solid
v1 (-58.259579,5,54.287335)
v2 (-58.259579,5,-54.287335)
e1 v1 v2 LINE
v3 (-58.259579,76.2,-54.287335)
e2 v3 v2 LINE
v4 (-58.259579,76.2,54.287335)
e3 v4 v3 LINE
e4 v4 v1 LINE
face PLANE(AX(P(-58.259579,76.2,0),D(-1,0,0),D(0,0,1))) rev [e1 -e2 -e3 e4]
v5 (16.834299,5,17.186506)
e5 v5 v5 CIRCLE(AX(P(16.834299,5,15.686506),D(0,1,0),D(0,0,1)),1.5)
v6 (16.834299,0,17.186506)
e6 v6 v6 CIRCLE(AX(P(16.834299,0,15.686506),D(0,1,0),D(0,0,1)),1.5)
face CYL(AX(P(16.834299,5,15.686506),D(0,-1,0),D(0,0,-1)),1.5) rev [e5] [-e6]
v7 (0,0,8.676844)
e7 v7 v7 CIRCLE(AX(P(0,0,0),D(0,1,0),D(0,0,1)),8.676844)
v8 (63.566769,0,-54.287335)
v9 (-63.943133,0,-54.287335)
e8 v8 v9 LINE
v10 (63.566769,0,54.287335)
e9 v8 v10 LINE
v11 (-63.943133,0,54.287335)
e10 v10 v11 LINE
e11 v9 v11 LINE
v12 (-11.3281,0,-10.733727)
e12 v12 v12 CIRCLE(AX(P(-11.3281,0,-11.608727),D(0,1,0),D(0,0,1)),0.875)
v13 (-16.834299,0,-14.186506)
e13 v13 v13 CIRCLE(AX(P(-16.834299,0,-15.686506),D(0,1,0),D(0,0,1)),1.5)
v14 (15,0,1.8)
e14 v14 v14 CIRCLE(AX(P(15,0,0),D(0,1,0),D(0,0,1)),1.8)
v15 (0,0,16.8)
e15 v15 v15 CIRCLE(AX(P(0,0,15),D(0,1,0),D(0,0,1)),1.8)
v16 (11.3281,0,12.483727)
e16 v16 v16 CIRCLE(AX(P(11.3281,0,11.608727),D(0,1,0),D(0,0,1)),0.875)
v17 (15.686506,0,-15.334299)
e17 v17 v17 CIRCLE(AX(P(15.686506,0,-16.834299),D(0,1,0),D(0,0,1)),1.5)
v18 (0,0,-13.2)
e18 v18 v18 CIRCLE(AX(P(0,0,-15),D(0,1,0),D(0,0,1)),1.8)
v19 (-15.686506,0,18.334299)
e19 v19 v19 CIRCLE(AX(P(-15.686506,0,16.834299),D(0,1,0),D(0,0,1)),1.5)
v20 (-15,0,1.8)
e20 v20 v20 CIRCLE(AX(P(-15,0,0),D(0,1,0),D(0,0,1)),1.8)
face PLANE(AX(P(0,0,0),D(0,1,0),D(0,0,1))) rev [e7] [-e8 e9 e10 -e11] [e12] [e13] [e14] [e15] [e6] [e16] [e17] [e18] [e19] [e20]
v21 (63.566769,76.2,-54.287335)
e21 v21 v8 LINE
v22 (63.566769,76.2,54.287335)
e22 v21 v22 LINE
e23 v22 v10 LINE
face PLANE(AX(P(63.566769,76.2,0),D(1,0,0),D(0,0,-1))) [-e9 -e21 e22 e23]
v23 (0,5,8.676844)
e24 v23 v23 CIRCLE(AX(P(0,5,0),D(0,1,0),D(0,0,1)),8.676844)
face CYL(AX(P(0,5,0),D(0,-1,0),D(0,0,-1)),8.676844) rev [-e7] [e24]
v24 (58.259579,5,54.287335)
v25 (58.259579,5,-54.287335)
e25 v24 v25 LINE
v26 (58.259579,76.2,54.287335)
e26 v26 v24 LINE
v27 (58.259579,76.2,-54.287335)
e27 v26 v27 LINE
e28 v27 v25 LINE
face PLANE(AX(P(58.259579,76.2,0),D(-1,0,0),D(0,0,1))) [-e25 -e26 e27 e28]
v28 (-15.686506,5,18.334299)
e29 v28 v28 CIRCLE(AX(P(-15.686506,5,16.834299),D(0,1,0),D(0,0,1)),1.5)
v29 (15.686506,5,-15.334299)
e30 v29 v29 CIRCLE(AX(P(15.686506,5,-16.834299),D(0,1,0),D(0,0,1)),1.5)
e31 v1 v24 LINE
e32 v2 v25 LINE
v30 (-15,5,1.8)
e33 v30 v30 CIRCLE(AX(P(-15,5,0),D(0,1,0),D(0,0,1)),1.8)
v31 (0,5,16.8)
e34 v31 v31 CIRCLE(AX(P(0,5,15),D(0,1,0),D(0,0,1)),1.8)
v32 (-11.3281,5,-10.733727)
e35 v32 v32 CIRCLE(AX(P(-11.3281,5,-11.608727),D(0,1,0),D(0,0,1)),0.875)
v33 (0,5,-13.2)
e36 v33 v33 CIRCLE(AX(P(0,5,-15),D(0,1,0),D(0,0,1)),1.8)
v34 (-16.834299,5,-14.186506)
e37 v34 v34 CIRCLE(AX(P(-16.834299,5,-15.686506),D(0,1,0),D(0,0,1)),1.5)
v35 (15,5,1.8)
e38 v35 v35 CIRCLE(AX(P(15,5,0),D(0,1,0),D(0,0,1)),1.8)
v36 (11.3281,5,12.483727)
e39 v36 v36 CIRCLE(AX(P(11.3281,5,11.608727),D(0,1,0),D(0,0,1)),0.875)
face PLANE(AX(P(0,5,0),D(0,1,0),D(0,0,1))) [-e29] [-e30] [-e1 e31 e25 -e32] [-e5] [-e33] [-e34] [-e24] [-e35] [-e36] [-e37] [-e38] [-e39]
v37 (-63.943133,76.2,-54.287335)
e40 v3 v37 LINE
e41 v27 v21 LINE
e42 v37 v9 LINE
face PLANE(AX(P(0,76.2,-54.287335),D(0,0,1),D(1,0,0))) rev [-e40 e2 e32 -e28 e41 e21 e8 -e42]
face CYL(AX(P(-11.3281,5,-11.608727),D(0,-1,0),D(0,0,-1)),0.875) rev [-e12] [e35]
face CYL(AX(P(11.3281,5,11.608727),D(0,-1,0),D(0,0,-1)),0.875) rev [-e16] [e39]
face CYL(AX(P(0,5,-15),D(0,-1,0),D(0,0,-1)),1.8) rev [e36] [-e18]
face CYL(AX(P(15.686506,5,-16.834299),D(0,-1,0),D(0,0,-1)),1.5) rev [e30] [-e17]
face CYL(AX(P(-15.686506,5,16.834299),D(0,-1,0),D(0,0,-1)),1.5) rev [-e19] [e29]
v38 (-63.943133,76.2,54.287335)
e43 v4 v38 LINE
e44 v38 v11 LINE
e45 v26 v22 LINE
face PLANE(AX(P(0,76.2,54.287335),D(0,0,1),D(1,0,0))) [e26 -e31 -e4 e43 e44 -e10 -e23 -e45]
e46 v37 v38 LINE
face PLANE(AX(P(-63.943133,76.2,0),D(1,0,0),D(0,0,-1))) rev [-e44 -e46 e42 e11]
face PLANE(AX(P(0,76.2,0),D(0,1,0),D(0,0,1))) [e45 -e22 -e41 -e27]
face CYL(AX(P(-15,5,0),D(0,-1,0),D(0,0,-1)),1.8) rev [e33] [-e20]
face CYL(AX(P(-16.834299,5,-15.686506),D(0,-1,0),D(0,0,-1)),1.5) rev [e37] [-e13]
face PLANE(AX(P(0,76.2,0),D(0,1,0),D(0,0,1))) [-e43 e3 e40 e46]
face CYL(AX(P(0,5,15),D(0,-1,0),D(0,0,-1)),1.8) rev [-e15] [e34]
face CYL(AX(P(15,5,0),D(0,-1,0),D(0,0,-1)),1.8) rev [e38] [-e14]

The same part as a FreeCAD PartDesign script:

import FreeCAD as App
import Part
import Sketcher
from FreeCAD import Vector
Q = App.Units.Quantity


def add_polygon(sketch, points):
    """Adds a closed chain of lines whose ends are joined by coincident constraints."""
    first, n = sketch.GeometryCount, len(points)
    for a, b in zip(points, points[1:] + points[:1]):
        sketch.addGeometry(Part.LineSegment(App.Vector(*a, 0), App.Vector(*b, 0)), False)
    for i in range(n):
        sketch.addConstraint(Sketcher.Constraint("Coincident", first + i, 2, first + (i + 1) % n, 1))

doc = App.newDocument("Part")
body = doc.addObject("PartDesign::Body", "Body")

# Sketch on XZ plane
sketch1 = body.newObject("Sketcher::SketchObject", "Sketch")
sketch1.AttachmentSupport = (doc.getObject("XZ_Plane"), [""])
sketch1.MapMode = "FlatFace"
add_polygon(sketch1, [(-64, -54), (-64, 54), (-58, 54), (-58, -54)])  # lines 0-3
sketch1.addConstraint([
    Sketcher.Constraint("Vertical", 0),
    Sketcher.Constraint("Horizontal", 1),
    Sketcher.Constraint("Vertical", 2),
    Sketcher.Constraint("Horizontal", 3),
    Sketcher.Constraint("DistanceY", 0, 1, 0, 2, Q("108.574669 mm")),
    Sketcher.Constraint("DistanceX", 1, 1, 1, 2, Q("5.683555 mm")),
    Sketcher.Constraint("DistanceX", 1, 2, -1, 1, Q("58.259579 mm")),
    Sketcher.Constraint("DistanceY", -1, 1, 0, 2, Q("54.287335 mm")),
])
pad1 = body.newObject("PartDesign::Pad", "Pad")
pad1.Profile = sketch1
pad1.Length = 76.2
pad1.Reversed = True
body2 = doc.addObject("PartDesign::Body", "Body001")

# Sketch on XZ plane
sketch2 = body2.newObject("Sketcher::SketchObject", "Sketch001")
sketch2.AttachmentSupport = (doc.getObject("XZ_Plane001"), [""])
sketch2.MapMode = "FlatFace"
add_polygon(sketch2, [(58, -54), (58, 54), (64, 54), (64, -54)])  # lines 0-3
sketch2.addConstraint([
    Sketcher.Constraint("Vertical", 0),
    Sketcher.Constraint("Horizontal", 1),
    Sketcher.Constraint("Vertical", 2),
    Sketcher.Constraint("Horizontal", 3),
    Sketcher.Constraint("DistanceX", 1, 1, 1, 2, Q("5.307191 mm")),
    Sketcher.Constraint("DistanceY", 0, 1, 0, 2, Q("108.574669 mm")),
    Sketcher.Constraint("DistanceX", -1, 1, 0, 2, Q("58.259579 mm")),
    Sketcher.Constraint("DistanceY", -1, 1, 0, 2, Q("54.287335 mm")),
])
pad2 = body2.newObject("PartDesign::Pad", "Pad001")
pad2.Profile = sketch2
pad2.Length = 76.2
pad2.Reversed = True
body.AllowCompound = True
doc.recompute()

boolean = body.newObject("PartDesign::Boolean", "Boolean")
boolean.Type = "Fuse"
boolean.addObjects([body2])

# Sketch on XZ plane
sketch3 = body.newObject("Sketcher::SketchObject", "Sketch002")
sketch3.AttachmentSupport = (doc.getObject("XZ_Plane"), [""])
sketch3.MapMode = "FlatFace"
add_polygon(sketch3, [(63.6, 54.3), (63.6, -54.3), (-63.9, -54.3), (-63.9, 54.3)])  # lines 0-3
sketch3.addGeometry(Part.Circle(Vector(-15.7, 16.8, 0), Vector(0, 0, 1), 1.5), False)  # 4
sketch3.addGeometry(Part.Circle(Vector(-15, 0, 0), Vector(0, 0, 1), 1.8), False)  # 5
sketch3.addGeometry(Part.Circle(Vector(0, 15, 0), Vector(0, 0, 1), 1.8), False)  # 6
sketch3.addGeometry(Part.Circle(Vector(16.8, 15.7, 0), Vector(0, 0, 1), 1.5), False)  # 7
sketch3.addGeometry(Part.Circle(Vector(11.3, 11.6, 0), Vector(0, 0, 1), 0.9), False)  # 8
sketch3.addGeometry(Part.Circle(Vector(0, 0, 0), Vector(0, 0, 1), 8.7), False)  # 9
sketch3.addGeometry(Part.Circle(Vector(15, 0, 0), Vector(0, 0, 1), 1.8), False)  # 10
sketch3.addGeometry(Part.Circle(Vector(-11.3, -11.6, 0), Vector(0, 0, 1), 0.9), False)  # 11
sketch3.addGeometry(Part.Circle(Vector(-16.8, -15.7, 0), Vector(0, 0, 1), 1.5), False)  # 12
sketch3.addGeometry(Part.Circle(Vector(0, -15, 0), Vector(0, 0, 1), 1.8), False)  # 13
sketch3.addGeometry(Part.Circle(Vector(15.7, -16.8, 0), Vector(0, 0, 1), 1.5), False)  # 14
sketch3.addConstraint([
    Sketcher.Constraint("Vertical", 0),
    Sketcher.Constraint("Horizontal", 1),
    Sketcher.Constraint("Vertical", 2),
    Sketcher.Constraint("Horizontal", 3),
    Sketcher.Constraint("Coincident", 9, 3, -1, 1),
    Sketcher.Constraint("Equal", 5, 6),
    Sketcher.Constraint("Equal", 4, 7),
    Sketcher.Constraint("Equal", 6, 10),
    Sketcher.Constraint("Equal", 8, 11),
    Sketcher.Constraint("Equal", 7, 12),
    Sketcher.Constraint("Equal", 10, 13),
    Sketcher.Constraint("Equal", 12, 14),
    Sketcher.Constraint("Symmetric", 5, 3, 10, 3, -1, 1),
    Sketcher.Constraint("Symmetric", 8, 3, 11, 3, -1, 1),
    Sketcher.Constraint("Symmetric", 7, 3, 12, 3, -1, 1),
    Sketcher.Constraint("Symmetric", 6, 3, 13, 3, -1, 1),
    Sketcher.Constraint("Symmetric", 4, 3, 14, 3, -1, 1),
    Sketcher.Constraint("PointOnObject", 5, 3, -1),
    Sketcher.Constraint("PointOnObject", 6, 3, -2),
    Sketcher.Constraint("Diameter", 4, Q("3 mm")),
    Sketcher.Constraint("Diameter", 5, Q("3.6 mm")),
    Sketcher.Constraint("Diameter", 8, Q("1.75 mm")),
    Sketcher.Constraint("DistanceX", 5, 3, -1, 1, Q("15 mm")),
    Sketcher.Constraint("DistanceY", -1, 1, 6, 3, Q("15 mm")),
    Sketcher.Constraint("Diameter", 9, Q("17.353687 mm")),
    Sketcher.Constraint("DistanceY", 0, 2, 0, 1, Q("108.574669 mm")),
    Sketcher.Constraint("DistanceY", -1, 1, 4, 3, Q("16.834299 mm")),
    Sketcher.Constraint("DistanceX", -1, 1, 7, 3, Q("16.834299 mm")),
    Sketcher.Constraint("DistanceX", -1, 1, 8, 3, Q("11.3281 mm")),
    Sketcher.Constraint("DistanceX", 1, 2, 1, 1, Q("127.509903 mm")),
    Sketcher.Constraint("DistanceX", -1, 1, 0, 2, Q("63.566769 mm")),
    Sketcher.Constraint("DistanceY", 8, 3, 7, 3, Q("4.077779 mm")),
    Sketcher.Constraint("DistanceY", 0, 2, 8, 3, Q("65.896062 mm")),
    Sketcher.Constraint("DistanceY", 1, 2, 12, 3, Q("38.600829 mm")),
    Sketcher.Constraint("DistanceX", 4, 3, -1, 1, Q("15.686506 mm")),
])
pad3 = body.newObject("PartDesign::Pad", "Pad002")
pad3.Profile = sketch3
pad3.Length = 5
pad3.Reversed = True

doc.recompute()
